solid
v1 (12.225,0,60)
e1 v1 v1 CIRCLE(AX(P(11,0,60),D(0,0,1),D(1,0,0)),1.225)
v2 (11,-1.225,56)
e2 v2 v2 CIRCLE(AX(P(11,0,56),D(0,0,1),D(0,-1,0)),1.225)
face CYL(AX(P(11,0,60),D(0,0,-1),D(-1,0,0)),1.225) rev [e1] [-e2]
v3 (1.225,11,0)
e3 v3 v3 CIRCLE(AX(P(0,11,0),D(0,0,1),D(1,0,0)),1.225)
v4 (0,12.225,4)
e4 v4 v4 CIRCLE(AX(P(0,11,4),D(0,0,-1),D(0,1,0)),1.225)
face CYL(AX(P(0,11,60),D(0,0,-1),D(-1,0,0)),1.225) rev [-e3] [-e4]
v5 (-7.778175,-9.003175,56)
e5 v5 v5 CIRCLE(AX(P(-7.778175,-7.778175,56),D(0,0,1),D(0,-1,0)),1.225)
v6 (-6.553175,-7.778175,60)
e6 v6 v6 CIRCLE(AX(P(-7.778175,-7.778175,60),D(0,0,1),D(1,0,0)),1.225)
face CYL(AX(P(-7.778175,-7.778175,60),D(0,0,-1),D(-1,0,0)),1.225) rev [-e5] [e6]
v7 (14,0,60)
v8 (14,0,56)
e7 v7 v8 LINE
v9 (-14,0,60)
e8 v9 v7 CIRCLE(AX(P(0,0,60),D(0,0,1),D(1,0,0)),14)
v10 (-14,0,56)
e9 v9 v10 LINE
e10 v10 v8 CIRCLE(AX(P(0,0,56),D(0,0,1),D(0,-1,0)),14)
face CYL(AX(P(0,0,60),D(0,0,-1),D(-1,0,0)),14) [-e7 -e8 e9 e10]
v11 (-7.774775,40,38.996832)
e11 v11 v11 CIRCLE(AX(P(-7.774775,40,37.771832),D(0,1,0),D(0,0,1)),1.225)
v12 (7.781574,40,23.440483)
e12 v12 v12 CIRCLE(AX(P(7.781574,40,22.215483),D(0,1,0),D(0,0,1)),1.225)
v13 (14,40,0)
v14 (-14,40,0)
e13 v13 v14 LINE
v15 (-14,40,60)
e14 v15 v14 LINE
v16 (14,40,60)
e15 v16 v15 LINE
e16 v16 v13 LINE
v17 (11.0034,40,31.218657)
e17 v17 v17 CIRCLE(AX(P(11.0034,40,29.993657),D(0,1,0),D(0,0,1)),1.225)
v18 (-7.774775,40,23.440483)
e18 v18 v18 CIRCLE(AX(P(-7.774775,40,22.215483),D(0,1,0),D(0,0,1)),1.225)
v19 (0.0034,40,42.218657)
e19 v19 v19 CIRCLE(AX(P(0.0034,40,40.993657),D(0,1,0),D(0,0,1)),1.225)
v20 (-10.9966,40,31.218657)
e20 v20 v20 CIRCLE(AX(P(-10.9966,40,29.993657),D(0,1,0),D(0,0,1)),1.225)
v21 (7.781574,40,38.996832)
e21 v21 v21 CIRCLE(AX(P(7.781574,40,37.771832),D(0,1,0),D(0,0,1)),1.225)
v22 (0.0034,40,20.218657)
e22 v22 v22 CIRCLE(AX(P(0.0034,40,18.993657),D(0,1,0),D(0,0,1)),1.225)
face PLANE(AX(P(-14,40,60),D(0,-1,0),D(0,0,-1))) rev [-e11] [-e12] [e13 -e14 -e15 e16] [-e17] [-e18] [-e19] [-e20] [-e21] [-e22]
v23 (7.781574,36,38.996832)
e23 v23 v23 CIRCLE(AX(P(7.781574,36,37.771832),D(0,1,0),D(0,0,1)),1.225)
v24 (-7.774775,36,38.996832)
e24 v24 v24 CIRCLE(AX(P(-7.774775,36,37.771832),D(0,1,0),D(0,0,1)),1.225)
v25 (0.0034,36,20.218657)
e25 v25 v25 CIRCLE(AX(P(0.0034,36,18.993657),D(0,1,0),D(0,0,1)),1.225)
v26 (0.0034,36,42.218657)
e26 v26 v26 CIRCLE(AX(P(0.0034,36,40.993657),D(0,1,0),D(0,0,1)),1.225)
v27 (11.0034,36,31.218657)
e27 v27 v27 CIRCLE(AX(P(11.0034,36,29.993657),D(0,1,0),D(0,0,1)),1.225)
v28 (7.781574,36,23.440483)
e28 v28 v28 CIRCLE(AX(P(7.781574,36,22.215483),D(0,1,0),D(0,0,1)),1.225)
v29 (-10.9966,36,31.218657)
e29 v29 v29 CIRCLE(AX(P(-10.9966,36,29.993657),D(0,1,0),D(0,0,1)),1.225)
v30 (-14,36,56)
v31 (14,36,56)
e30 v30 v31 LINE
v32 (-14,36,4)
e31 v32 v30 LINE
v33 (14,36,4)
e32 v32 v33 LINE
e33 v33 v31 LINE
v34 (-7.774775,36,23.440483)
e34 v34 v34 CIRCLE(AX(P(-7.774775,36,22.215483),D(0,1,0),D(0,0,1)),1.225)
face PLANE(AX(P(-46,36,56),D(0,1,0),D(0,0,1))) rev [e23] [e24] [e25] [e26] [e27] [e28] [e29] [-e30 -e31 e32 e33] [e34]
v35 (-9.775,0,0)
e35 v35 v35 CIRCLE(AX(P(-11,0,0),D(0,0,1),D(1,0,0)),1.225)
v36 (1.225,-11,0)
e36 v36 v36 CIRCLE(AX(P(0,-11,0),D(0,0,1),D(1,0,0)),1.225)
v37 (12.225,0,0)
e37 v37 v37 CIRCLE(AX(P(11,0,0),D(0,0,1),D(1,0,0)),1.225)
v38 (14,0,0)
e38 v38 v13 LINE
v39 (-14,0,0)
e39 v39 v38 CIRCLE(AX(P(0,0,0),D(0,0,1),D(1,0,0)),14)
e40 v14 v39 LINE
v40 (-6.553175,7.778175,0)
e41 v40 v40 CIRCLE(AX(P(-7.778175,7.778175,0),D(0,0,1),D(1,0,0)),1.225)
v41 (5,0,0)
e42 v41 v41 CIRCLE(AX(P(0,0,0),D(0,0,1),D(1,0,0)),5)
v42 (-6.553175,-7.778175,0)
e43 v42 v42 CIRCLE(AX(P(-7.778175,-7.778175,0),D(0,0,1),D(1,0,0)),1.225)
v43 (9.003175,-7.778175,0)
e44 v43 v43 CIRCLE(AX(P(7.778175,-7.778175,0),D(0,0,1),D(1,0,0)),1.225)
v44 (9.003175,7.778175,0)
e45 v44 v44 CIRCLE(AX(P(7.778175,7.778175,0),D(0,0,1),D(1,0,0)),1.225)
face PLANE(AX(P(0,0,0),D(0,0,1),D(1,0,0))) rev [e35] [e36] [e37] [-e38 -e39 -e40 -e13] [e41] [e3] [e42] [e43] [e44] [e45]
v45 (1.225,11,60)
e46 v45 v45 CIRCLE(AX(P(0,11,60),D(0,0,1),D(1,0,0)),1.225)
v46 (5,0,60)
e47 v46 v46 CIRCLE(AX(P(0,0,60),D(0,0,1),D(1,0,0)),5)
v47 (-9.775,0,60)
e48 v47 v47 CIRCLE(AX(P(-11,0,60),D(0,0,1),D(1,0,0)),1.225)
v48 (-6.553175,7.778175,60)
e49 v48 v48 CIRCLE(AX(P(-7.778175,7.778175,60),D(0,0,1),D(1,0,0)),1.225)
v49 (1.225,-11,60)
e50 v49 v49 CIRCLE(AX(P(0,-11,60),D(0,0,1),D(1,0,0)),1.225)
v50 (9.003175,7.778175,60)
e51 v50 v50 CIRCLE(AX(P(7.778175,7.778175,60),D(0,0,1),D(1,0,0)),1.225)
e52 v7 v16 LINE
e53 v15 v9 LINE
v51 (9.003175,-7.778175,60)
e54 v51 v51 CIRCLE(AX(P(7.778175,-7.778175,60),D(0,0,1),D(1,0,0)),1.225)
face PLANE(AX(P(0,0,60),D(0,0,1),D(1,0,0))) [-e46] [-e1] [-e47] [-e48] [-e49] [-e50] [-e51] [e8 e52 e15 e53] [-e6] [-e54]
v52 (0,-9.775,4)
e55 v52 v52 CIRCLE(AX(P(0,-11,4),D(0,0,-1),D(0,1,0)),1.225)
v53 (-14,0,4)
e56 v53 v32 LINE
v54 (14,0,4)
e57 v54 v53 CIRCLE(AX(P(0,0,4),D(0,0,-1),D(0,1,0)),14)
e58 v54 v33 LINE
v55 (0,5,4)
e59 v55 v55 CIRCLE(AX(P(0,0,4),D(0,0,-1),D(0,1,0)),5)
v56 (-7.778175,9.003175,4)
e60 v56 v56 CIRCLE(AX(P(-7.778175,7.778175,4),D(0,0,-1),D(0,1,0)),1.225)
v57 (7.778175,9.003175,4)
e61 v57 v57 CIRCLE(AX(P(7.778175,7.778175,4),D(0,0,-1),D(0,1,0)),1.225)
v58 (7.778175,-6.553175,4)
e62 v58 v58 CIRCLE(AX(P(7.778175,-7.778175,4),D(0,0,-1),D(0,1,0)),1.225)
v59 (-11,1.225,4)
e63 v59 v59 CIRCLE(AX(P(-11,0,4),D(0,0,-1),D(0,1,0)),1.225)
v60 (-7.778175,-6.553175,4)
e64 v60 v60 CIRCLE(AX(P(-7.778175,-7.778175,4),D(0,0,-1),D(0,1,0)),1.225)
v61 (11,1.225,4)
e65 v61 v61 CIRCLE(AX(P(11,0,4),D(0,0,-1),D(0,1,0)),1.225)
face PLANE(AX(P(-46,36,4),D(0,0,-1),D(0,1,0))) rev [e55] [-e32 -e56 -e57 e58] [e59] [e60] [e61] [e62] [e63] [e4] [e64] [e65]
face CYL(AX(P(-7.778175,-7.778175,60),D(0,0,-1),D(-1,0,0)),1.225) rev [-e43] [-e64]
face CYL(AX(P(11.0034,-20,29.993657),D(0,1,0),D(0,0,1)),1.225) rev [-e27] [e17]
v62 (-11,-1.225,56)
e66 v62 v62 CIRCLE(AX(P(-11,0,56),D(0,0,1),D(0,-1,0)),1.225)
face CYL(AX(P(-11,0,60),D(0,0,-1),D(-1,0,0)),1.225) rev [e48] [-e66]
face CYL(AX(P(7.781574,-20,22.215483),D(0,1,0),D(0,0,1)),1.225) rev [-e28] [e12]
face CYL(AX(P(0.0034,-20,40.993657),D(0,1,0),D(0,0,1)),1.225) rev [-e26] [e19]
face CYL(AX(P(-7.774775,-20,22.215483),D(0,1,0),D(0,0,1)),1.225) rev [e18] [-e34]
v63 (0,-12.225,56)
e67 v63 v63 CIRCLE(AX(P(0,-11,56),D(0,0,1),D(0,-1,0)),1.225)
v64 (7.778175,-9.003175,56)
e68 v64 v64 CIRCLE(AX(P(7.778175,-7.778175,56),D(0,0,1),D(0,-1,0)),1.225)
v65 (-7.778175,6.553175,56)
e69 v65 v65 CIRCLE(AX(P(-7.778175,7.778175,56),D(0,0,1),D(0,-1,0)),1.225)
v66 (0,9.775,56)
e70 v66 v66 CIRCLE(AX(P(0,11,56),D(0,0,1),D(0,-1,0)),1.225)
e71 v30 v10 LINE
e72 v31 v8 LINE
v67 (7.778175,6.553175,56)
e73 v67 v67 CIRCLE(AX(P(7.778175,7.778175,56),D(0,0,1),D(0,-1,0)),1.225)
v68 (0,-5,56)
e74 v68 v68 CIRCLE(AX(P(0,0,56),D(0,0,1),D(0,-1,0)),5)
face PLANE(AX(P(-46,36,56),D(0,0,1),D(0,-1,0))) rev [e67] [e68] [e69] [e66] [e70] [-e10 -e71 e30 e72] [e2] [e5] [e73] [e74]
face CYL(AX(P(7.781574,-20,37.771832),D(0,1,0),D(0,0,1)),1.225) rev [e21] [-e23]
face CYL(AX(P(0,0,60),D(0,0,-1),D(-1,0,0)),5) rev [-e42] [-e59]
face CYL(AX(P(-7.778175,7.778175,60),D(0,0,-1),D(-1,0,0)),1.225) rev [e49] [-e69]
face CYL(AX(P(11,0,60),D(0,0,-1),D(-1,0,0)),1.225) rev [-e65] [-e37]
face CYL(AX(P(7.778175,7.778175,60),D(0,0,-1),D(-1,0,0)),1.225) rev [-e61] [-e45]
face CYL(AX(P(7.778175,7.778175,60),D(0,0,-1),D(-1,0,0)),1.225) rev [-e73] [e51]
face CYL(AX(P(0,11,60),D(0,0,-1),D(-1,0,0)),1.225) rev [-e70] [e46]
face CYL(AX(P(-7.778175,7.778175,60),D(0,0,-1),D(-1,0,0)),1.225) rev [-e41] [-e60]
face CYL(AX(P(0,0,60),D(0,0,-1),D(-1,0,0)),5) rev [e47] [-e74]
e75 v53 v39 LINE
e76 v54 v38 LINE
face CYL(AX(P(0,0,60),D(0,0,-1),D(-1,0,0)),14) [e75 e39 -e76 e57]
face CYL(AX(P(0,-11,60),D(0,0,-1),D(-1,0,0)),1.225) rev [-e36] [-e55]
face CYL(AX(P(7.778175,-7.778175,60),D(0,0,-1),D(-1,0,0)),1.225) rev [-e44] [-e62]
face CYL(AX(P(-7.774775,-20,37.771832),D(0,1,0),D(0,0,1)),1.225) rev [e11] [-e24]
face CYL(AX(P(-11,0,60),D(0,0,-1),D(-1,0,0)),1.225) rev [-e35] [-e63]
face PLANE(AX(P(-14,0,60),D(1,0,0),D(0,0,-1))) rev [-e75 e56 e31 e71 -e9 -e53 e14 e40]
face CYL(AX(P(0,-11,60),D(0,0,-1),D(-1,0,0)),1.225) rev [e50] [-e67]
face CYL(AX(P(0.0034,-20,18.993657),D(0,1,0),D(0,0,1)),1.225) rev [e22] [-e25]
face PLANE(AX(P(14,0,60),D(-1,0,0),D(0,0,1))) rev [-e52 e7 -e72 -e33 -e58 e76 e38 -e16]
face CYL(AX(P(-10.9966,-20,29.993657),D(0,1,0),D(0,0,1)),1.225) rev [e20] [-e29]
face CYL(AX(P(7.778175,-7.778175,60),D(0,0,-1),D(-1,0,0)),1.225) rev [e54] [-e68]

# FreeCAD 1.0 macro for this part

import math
import FreeCAD as App
import Part
import Sketcher
from FreeCAD import Vector
Q = App.Units.Quantity

doc = App.newDocument("Part")
body = doc.addObject("PartDesign::Body", "Body")

# Sketch on XY plane
sketch1 = body.newObject("Sketcher::SketchObject", "Sketch")
sketch1.AttachmentSupport = (doc.getObject("XY_Plane"), [""])
sketch1.MapMode = "FlatFace"
sketch1.addGeometry(Part.LineSegment(Vector(-14, 40, 0), Vector(-14, 0, 0)), False)
sketch1.addGeometry(Part.ArcOfCircle(Part.Circle(Vector(0, 0, 0), Vector(0, 0, 1), 14), math.radians(180), math.radians(360)), False)
sketch1.addGeometry(Part.LineSegment(Vector(14, 0, 0), Vector(14, 40, 0)), False)
sketch1.addGeometry(Part.LineSegment(Vector(14, 40, 0), Vector(-14, 40, 0)), False)
sketch1.addGeometry(Part.Circle(Vector(7.778175, -7.778175, 0), Vector(0, 0, 1), 1.225), False)
sketch1.addGeometry(Part.Circle(Vector(0, -11, 0), Vector(0, 0, 1), 1.225), False)
sketch1.addGeometry(Part.Circle(Vector(-7.778175, -7.778175, 0), Vector(0, 0, 1), 1.225), False)
sketch1.addGeometry(Part.Circle(Vector(11, 0, 0), Vector(0, 0, 1), 1.225), False)
sketch1.addGeometry(Part.Circle(Vector(7.778175, 7.778175, 0), Vector(0, 0, 1), 1.225), False)
sketch1.addGeometry(Part.Circle(Vector(0, 0, 0), Vector(0, 0, 1), 5), False)
sketch1.addGeometry(Part.Circle(Vector(-11, 0, 0), Vector(0, 0, 1), 1.225), False)
sketch1.addGeometry(Part.Circle(Vector(0, 11, 0), Vector(0, 0, 1), 1.225), False)
sketch1.addGeometry(Part.Circle(Vector(-7.778175, 7.778175, 0), Vector(0, 0, 1), 1.225), False)
sketch1.addConstraint(Sketcher.Constraint("Tangent", 0, 2, 1, 1))
sketch1.addConstraint(Sketcher.Constraint("Tangent", 1, 2, 2, 1))
sketch1.addConstraint(Sketcher.Constraint("Coincident", 2, 2, 3, 1))
sketch1.addConstraint(Sketcher.Constraint("Coincident", 3, 2, 0, 1))
sketch1.addConstraint(Sketcher.Constraint("Vertical", 0))
sketch1.addConstraint(Sketcher.Constraint("Vertical", 2))
sketch1.addConstraint(Sketcher.Constraint("Horizontal", 3))
sketch1.addConstraint(Sketcher.Constraint("Coincident", 1, 3, -1, 1))
sketch1.addConstraint(Sketcher.Constraint("Coincident", 9, 3, -1, 1))
sketch1.addConstraint(Sketcher.Constraint("Equal", 4, 5))
sketch1.addConstraint(Sketcher.Constraint("Equal", 5, 6))
sketch1.addConstraint(Sketcher.Constraint("Equal", 6, 7))
sketch1.addConstraint(Sketcher.Constraint("Equal", 7, 8))
sketch1.addConstraint(Sketcher.Constraint("Equal", 8, 10))
sketch1.addConstraint(Sketcher.Constraint("Equal", 10, 11))
sketch1.addConstraint(Sketcher.Constraint("Equal", 11, 12))
sketch1.addConstraint(Sketcher.Constraint("Symmetric", 6, 3, 8, 3, -1, 1))
sketch1.addConstraint(Sketcher.Constraint("Symmetric", 7, 3, 10, 3, -1, 1))
sketch1.addConstraint(Sketcher.Constraint("Symmetric", 5, 3, 11, 3, -1, 1))
sketch1.addConstraint(Sketcher.Constraint("Symmetric", 4, 3, 12, 3, -1, 1))
sketch1.addConstraint(Sketcher.Constraint("Symmetric", 4, 3, 6, 3, -2))
sketch1.addConstraint(Sketcher.Constraint("PointOnObject", 5, 3, -2))
sketch1.addConstraint(Sketcher.Constraint("PointOnObject", 7, 3, -1))
sketch1.addConstraint(Sketcher.Constraint("Diameter", 9, Q("10 mm")))
sketch1.addConstraint(Sketcher.Constraint("Radius", 1, Q("14 mm")))
sketch1.addConstraint(Sketcher.Constraint("Diameter", 4, Q("2.45 mm")))
sketch1.addConstraint(Sketcher.Constraint("DistanceY", 0, 2, 0, 1, Q("40 mm")))
sketch1.addConstraint(Sketcher.Constraint("DistanceY", 5, 3, -1, 1, Q("11 mm")))
sketch1.addConstraint(Sketcher.Constraint("DistanceX", -1, 1, 7, 3, Q("11 mm")))
sketch1.addConstraint(Sketcher.Constraint("DistanceX", 6, 3, 4, 3, Q("15.556349 mm")))
sketch1.addConstraint(Sketcher.Constraint("DistanceY", 4, 3, 8, 3, Q("15.556349 mm")))
pad1 = body.newObject("PartDesign::Pad", "Pad")
pad1.Profile = sketch1
pad1.Length = 60

# Sketch on YZ plane
sketch2 = body.newObject("Sketcher::SketchObject", "Sketch001")
sketch2.AttachmentSupport = (doc.getObject("YZ_Plane"), [""])
sketch2.MapMode = "FlatFace"
sketch2.AttachmentOffset = App.Placement(Vector(0, 0, 14), App.Rotation())
sketch2.addGeometry(Part.LineSegment(Vector(36, 56, 0), Vector(-14, 56, 0)), False)
sketch2.addGeometry(Part.LineSegment(Vector(-14, 56, 0), Vector(-14, 4, 0)), False)
sketch2.addGeometry(Part.LineSegment(Vector(-14, 4, 0), Vector(36, 4, 0)), False)
sketch2.addGeometry(Part.LineSegment(Vector(36, 4, 0), Vector(36, 56, 0)), False)
sketch2.addConstraint(Sketcher.Constraint("Coincident", 0, 2, 1, 1))
sketch2.addConstraint(Sketcher.Constraint("Coincident", 1, 2, 2, 1))
sketch2.addConstraint(Sketcher.Constraint("Coincident", 2, 2, 3, 1))
sketch2.addConstraint(Sketcher.Constraint("Coincident", 3, 2, 0, 1))
sketch2.addConstraint(Sketcher.Constraint("Horizontal", 0))
sketch2.addConstraint(Sketcher.Constraint("Vertical", 1))
sketch2.addConstraint(Sketcher.Constraint("Horizontal", 2))
sketch2.addConstraint(Sketcher.Constraint("Vertical", 3))
sketch2.addConstraint(Sketcher.Constraint("DistanceX", 0, 2, 0, 1, Q("50 mm")))
sketch2.addConstraint(Sketcher.Constraint("DistanceY", 1, 2, 1, 1, Q("52 mm")))
sketch2.addConstraint(Sketcher.Constraint("DistanceX", 0, 2, -1, 1, Q("14 mm")))
sketch2.addConstraint(Sketcher.Constraint("DistanceY", -1, 1, 0, 2, Q("56 mm")))
pocket1 = body.newObject("PartDesign::Pocket", "Pocket")
pocket1.Profile = sketch2
pocket1.Length = 60

# Sketch on XZ plane
sketch3 = body.newObject("Sketcher::SketchObject", "Sketch002")
sketch3.AttachmentSupport = (doc.getObject("XZ_Plane"), [""])
sketch3.MapMode = "FlatFace"
sketch3.AttachmentOffset = App.Placement(Vector(0, 0, -40), App.Rotation())
sketch3.addGeometry(Part.Circle(Vector(-7.774775, 22.215483, 0), Vector(0, 0, 1), 1.225), False)
sketch3.addGeometry(Part.Circle(Vector(0.0034, 18.993657, 0), Vector(0, 0, 1), 1.225), False)
sketch3.addGeometry(Part.Circle(Vector(7.781574, 22.215483, 0), Vector(0, 0, 1), 1.225), False)
sketch3.addGeometry(Part.Circle(Vector(11.0034, 29.993657, 0), Vector(0, 0, 1), 1.225), False)
sketch3.addGeometry(Part.Circle(Vector(7.781574, 37.771832, 0), Vector(0, 0, 1), 1.225), False)
sketch3.addGeometry(Part.Circle(Vector(0.0034, 40.993657, 0), Vector(0, 0, 1), 1.225), False)
sketch3.addGeometry(Part.Circle(Vector(-7.774775, 37.771832, 0), Vector(0, 0, 1), 1.225), False)
sketch3.addGeometry(Part.Circle(Vector(-10.9966, 29.993657, 0), Vector(0, 0, 1), 1.225), False)
sketch3.addConstraint(Sketcher.Constraint("Equal", 0, 1))
sketch3.addConstraint(Sketcher.Constraint("Equal", 1, 2))
sketch3.addConstraint(Sketcher.Constraint("Equal", 2, 3))
sketch3.addConstraint(Sketcher.Constraint("Equal", 3, 4))
sketch3.addConstraint(Sketcher.Constraint("Equal", 4, 5))
sketch3.addConstraint(Sketcher.Constraint("Equal", 5, 6))
sketch3.addConstraint(Sketcher.Constraint("Equal", 6, 7))
sketch3.addConstraint(Sketcher.Constraint("Horizontal", 0, 3, 2, 3))
sketch3.addConstraint(Sketcher.Constraint("Horizontal", 4, 3, 6, 3))
sketch3.addConstraint(Sketcher.Constraint("Horizontal", 3, 3, 7, 3))
sketch3.addConstraint(Sketcher.Constraint("Vertical", 2, 3, 4, 3))
sketch3.addConstraint(Sketcher.Constraint("Vertical", 1, 3, 5, 3))
sketch3.addConstraint(Sketcher.Constraint("Vertical", 0, 3, 6, 3))
sketch3.addConstraint(Sketcher.Constraint("Diameter", 0, Q("2.45 mm")))
sketch3.addConstraint(Sketcher.Constraint("DistanceX", 1, 3, 3, 3, Q("11 mm")))
sketch3.addConstraint(Sketcher.Constraint("DistanceY", 1, 3, 3, 3, Q("11 mm")))
sketch3.addConstraint(Sketcher.Constraint("DistanceY", 3, 3, 5, 3, Q("11 mm")))
sketch3.addConstraint(Sketcher.Constraint("DistanceX", 7, 3, 1, 3, Q("11 mm")))
sketch3.addConstraint(Sketcher.Constraint("DistanceX", -1, 1, 1, 3, Q("0.0034 mm")))
sketch3.addConstraint(Sketcher.Constraint("DistanceY", -1, 1, 4, 3, Q("37.771832 mm")))
sketch3.addConstraint(Sketcher.Constraint("DistanceX", 0, 3, 2, 3, Q("15.556349 mm")))
sketch3.addConstraint(Sketcher.Constraint("DistanceY", 2, 3, 4, 3, Q("15.556349 mm")))
sketch3.addConstraint(Sketcher.Constraint("DistanceX", 0, 3, -1, 1, Q("7.774775 mm")))
sketch3.addConstraint(Sketcher.Constraint("DistanceY", -1, 1, 1, 3, Q("18.993657 mm")))
pocket2 = body.newObject("PartDesign::Pocket", "Pocket001")
pocket2.Profile = sketch3
pocket2.Length = 60
pocket2.Reversed = True

doc.recompute()
